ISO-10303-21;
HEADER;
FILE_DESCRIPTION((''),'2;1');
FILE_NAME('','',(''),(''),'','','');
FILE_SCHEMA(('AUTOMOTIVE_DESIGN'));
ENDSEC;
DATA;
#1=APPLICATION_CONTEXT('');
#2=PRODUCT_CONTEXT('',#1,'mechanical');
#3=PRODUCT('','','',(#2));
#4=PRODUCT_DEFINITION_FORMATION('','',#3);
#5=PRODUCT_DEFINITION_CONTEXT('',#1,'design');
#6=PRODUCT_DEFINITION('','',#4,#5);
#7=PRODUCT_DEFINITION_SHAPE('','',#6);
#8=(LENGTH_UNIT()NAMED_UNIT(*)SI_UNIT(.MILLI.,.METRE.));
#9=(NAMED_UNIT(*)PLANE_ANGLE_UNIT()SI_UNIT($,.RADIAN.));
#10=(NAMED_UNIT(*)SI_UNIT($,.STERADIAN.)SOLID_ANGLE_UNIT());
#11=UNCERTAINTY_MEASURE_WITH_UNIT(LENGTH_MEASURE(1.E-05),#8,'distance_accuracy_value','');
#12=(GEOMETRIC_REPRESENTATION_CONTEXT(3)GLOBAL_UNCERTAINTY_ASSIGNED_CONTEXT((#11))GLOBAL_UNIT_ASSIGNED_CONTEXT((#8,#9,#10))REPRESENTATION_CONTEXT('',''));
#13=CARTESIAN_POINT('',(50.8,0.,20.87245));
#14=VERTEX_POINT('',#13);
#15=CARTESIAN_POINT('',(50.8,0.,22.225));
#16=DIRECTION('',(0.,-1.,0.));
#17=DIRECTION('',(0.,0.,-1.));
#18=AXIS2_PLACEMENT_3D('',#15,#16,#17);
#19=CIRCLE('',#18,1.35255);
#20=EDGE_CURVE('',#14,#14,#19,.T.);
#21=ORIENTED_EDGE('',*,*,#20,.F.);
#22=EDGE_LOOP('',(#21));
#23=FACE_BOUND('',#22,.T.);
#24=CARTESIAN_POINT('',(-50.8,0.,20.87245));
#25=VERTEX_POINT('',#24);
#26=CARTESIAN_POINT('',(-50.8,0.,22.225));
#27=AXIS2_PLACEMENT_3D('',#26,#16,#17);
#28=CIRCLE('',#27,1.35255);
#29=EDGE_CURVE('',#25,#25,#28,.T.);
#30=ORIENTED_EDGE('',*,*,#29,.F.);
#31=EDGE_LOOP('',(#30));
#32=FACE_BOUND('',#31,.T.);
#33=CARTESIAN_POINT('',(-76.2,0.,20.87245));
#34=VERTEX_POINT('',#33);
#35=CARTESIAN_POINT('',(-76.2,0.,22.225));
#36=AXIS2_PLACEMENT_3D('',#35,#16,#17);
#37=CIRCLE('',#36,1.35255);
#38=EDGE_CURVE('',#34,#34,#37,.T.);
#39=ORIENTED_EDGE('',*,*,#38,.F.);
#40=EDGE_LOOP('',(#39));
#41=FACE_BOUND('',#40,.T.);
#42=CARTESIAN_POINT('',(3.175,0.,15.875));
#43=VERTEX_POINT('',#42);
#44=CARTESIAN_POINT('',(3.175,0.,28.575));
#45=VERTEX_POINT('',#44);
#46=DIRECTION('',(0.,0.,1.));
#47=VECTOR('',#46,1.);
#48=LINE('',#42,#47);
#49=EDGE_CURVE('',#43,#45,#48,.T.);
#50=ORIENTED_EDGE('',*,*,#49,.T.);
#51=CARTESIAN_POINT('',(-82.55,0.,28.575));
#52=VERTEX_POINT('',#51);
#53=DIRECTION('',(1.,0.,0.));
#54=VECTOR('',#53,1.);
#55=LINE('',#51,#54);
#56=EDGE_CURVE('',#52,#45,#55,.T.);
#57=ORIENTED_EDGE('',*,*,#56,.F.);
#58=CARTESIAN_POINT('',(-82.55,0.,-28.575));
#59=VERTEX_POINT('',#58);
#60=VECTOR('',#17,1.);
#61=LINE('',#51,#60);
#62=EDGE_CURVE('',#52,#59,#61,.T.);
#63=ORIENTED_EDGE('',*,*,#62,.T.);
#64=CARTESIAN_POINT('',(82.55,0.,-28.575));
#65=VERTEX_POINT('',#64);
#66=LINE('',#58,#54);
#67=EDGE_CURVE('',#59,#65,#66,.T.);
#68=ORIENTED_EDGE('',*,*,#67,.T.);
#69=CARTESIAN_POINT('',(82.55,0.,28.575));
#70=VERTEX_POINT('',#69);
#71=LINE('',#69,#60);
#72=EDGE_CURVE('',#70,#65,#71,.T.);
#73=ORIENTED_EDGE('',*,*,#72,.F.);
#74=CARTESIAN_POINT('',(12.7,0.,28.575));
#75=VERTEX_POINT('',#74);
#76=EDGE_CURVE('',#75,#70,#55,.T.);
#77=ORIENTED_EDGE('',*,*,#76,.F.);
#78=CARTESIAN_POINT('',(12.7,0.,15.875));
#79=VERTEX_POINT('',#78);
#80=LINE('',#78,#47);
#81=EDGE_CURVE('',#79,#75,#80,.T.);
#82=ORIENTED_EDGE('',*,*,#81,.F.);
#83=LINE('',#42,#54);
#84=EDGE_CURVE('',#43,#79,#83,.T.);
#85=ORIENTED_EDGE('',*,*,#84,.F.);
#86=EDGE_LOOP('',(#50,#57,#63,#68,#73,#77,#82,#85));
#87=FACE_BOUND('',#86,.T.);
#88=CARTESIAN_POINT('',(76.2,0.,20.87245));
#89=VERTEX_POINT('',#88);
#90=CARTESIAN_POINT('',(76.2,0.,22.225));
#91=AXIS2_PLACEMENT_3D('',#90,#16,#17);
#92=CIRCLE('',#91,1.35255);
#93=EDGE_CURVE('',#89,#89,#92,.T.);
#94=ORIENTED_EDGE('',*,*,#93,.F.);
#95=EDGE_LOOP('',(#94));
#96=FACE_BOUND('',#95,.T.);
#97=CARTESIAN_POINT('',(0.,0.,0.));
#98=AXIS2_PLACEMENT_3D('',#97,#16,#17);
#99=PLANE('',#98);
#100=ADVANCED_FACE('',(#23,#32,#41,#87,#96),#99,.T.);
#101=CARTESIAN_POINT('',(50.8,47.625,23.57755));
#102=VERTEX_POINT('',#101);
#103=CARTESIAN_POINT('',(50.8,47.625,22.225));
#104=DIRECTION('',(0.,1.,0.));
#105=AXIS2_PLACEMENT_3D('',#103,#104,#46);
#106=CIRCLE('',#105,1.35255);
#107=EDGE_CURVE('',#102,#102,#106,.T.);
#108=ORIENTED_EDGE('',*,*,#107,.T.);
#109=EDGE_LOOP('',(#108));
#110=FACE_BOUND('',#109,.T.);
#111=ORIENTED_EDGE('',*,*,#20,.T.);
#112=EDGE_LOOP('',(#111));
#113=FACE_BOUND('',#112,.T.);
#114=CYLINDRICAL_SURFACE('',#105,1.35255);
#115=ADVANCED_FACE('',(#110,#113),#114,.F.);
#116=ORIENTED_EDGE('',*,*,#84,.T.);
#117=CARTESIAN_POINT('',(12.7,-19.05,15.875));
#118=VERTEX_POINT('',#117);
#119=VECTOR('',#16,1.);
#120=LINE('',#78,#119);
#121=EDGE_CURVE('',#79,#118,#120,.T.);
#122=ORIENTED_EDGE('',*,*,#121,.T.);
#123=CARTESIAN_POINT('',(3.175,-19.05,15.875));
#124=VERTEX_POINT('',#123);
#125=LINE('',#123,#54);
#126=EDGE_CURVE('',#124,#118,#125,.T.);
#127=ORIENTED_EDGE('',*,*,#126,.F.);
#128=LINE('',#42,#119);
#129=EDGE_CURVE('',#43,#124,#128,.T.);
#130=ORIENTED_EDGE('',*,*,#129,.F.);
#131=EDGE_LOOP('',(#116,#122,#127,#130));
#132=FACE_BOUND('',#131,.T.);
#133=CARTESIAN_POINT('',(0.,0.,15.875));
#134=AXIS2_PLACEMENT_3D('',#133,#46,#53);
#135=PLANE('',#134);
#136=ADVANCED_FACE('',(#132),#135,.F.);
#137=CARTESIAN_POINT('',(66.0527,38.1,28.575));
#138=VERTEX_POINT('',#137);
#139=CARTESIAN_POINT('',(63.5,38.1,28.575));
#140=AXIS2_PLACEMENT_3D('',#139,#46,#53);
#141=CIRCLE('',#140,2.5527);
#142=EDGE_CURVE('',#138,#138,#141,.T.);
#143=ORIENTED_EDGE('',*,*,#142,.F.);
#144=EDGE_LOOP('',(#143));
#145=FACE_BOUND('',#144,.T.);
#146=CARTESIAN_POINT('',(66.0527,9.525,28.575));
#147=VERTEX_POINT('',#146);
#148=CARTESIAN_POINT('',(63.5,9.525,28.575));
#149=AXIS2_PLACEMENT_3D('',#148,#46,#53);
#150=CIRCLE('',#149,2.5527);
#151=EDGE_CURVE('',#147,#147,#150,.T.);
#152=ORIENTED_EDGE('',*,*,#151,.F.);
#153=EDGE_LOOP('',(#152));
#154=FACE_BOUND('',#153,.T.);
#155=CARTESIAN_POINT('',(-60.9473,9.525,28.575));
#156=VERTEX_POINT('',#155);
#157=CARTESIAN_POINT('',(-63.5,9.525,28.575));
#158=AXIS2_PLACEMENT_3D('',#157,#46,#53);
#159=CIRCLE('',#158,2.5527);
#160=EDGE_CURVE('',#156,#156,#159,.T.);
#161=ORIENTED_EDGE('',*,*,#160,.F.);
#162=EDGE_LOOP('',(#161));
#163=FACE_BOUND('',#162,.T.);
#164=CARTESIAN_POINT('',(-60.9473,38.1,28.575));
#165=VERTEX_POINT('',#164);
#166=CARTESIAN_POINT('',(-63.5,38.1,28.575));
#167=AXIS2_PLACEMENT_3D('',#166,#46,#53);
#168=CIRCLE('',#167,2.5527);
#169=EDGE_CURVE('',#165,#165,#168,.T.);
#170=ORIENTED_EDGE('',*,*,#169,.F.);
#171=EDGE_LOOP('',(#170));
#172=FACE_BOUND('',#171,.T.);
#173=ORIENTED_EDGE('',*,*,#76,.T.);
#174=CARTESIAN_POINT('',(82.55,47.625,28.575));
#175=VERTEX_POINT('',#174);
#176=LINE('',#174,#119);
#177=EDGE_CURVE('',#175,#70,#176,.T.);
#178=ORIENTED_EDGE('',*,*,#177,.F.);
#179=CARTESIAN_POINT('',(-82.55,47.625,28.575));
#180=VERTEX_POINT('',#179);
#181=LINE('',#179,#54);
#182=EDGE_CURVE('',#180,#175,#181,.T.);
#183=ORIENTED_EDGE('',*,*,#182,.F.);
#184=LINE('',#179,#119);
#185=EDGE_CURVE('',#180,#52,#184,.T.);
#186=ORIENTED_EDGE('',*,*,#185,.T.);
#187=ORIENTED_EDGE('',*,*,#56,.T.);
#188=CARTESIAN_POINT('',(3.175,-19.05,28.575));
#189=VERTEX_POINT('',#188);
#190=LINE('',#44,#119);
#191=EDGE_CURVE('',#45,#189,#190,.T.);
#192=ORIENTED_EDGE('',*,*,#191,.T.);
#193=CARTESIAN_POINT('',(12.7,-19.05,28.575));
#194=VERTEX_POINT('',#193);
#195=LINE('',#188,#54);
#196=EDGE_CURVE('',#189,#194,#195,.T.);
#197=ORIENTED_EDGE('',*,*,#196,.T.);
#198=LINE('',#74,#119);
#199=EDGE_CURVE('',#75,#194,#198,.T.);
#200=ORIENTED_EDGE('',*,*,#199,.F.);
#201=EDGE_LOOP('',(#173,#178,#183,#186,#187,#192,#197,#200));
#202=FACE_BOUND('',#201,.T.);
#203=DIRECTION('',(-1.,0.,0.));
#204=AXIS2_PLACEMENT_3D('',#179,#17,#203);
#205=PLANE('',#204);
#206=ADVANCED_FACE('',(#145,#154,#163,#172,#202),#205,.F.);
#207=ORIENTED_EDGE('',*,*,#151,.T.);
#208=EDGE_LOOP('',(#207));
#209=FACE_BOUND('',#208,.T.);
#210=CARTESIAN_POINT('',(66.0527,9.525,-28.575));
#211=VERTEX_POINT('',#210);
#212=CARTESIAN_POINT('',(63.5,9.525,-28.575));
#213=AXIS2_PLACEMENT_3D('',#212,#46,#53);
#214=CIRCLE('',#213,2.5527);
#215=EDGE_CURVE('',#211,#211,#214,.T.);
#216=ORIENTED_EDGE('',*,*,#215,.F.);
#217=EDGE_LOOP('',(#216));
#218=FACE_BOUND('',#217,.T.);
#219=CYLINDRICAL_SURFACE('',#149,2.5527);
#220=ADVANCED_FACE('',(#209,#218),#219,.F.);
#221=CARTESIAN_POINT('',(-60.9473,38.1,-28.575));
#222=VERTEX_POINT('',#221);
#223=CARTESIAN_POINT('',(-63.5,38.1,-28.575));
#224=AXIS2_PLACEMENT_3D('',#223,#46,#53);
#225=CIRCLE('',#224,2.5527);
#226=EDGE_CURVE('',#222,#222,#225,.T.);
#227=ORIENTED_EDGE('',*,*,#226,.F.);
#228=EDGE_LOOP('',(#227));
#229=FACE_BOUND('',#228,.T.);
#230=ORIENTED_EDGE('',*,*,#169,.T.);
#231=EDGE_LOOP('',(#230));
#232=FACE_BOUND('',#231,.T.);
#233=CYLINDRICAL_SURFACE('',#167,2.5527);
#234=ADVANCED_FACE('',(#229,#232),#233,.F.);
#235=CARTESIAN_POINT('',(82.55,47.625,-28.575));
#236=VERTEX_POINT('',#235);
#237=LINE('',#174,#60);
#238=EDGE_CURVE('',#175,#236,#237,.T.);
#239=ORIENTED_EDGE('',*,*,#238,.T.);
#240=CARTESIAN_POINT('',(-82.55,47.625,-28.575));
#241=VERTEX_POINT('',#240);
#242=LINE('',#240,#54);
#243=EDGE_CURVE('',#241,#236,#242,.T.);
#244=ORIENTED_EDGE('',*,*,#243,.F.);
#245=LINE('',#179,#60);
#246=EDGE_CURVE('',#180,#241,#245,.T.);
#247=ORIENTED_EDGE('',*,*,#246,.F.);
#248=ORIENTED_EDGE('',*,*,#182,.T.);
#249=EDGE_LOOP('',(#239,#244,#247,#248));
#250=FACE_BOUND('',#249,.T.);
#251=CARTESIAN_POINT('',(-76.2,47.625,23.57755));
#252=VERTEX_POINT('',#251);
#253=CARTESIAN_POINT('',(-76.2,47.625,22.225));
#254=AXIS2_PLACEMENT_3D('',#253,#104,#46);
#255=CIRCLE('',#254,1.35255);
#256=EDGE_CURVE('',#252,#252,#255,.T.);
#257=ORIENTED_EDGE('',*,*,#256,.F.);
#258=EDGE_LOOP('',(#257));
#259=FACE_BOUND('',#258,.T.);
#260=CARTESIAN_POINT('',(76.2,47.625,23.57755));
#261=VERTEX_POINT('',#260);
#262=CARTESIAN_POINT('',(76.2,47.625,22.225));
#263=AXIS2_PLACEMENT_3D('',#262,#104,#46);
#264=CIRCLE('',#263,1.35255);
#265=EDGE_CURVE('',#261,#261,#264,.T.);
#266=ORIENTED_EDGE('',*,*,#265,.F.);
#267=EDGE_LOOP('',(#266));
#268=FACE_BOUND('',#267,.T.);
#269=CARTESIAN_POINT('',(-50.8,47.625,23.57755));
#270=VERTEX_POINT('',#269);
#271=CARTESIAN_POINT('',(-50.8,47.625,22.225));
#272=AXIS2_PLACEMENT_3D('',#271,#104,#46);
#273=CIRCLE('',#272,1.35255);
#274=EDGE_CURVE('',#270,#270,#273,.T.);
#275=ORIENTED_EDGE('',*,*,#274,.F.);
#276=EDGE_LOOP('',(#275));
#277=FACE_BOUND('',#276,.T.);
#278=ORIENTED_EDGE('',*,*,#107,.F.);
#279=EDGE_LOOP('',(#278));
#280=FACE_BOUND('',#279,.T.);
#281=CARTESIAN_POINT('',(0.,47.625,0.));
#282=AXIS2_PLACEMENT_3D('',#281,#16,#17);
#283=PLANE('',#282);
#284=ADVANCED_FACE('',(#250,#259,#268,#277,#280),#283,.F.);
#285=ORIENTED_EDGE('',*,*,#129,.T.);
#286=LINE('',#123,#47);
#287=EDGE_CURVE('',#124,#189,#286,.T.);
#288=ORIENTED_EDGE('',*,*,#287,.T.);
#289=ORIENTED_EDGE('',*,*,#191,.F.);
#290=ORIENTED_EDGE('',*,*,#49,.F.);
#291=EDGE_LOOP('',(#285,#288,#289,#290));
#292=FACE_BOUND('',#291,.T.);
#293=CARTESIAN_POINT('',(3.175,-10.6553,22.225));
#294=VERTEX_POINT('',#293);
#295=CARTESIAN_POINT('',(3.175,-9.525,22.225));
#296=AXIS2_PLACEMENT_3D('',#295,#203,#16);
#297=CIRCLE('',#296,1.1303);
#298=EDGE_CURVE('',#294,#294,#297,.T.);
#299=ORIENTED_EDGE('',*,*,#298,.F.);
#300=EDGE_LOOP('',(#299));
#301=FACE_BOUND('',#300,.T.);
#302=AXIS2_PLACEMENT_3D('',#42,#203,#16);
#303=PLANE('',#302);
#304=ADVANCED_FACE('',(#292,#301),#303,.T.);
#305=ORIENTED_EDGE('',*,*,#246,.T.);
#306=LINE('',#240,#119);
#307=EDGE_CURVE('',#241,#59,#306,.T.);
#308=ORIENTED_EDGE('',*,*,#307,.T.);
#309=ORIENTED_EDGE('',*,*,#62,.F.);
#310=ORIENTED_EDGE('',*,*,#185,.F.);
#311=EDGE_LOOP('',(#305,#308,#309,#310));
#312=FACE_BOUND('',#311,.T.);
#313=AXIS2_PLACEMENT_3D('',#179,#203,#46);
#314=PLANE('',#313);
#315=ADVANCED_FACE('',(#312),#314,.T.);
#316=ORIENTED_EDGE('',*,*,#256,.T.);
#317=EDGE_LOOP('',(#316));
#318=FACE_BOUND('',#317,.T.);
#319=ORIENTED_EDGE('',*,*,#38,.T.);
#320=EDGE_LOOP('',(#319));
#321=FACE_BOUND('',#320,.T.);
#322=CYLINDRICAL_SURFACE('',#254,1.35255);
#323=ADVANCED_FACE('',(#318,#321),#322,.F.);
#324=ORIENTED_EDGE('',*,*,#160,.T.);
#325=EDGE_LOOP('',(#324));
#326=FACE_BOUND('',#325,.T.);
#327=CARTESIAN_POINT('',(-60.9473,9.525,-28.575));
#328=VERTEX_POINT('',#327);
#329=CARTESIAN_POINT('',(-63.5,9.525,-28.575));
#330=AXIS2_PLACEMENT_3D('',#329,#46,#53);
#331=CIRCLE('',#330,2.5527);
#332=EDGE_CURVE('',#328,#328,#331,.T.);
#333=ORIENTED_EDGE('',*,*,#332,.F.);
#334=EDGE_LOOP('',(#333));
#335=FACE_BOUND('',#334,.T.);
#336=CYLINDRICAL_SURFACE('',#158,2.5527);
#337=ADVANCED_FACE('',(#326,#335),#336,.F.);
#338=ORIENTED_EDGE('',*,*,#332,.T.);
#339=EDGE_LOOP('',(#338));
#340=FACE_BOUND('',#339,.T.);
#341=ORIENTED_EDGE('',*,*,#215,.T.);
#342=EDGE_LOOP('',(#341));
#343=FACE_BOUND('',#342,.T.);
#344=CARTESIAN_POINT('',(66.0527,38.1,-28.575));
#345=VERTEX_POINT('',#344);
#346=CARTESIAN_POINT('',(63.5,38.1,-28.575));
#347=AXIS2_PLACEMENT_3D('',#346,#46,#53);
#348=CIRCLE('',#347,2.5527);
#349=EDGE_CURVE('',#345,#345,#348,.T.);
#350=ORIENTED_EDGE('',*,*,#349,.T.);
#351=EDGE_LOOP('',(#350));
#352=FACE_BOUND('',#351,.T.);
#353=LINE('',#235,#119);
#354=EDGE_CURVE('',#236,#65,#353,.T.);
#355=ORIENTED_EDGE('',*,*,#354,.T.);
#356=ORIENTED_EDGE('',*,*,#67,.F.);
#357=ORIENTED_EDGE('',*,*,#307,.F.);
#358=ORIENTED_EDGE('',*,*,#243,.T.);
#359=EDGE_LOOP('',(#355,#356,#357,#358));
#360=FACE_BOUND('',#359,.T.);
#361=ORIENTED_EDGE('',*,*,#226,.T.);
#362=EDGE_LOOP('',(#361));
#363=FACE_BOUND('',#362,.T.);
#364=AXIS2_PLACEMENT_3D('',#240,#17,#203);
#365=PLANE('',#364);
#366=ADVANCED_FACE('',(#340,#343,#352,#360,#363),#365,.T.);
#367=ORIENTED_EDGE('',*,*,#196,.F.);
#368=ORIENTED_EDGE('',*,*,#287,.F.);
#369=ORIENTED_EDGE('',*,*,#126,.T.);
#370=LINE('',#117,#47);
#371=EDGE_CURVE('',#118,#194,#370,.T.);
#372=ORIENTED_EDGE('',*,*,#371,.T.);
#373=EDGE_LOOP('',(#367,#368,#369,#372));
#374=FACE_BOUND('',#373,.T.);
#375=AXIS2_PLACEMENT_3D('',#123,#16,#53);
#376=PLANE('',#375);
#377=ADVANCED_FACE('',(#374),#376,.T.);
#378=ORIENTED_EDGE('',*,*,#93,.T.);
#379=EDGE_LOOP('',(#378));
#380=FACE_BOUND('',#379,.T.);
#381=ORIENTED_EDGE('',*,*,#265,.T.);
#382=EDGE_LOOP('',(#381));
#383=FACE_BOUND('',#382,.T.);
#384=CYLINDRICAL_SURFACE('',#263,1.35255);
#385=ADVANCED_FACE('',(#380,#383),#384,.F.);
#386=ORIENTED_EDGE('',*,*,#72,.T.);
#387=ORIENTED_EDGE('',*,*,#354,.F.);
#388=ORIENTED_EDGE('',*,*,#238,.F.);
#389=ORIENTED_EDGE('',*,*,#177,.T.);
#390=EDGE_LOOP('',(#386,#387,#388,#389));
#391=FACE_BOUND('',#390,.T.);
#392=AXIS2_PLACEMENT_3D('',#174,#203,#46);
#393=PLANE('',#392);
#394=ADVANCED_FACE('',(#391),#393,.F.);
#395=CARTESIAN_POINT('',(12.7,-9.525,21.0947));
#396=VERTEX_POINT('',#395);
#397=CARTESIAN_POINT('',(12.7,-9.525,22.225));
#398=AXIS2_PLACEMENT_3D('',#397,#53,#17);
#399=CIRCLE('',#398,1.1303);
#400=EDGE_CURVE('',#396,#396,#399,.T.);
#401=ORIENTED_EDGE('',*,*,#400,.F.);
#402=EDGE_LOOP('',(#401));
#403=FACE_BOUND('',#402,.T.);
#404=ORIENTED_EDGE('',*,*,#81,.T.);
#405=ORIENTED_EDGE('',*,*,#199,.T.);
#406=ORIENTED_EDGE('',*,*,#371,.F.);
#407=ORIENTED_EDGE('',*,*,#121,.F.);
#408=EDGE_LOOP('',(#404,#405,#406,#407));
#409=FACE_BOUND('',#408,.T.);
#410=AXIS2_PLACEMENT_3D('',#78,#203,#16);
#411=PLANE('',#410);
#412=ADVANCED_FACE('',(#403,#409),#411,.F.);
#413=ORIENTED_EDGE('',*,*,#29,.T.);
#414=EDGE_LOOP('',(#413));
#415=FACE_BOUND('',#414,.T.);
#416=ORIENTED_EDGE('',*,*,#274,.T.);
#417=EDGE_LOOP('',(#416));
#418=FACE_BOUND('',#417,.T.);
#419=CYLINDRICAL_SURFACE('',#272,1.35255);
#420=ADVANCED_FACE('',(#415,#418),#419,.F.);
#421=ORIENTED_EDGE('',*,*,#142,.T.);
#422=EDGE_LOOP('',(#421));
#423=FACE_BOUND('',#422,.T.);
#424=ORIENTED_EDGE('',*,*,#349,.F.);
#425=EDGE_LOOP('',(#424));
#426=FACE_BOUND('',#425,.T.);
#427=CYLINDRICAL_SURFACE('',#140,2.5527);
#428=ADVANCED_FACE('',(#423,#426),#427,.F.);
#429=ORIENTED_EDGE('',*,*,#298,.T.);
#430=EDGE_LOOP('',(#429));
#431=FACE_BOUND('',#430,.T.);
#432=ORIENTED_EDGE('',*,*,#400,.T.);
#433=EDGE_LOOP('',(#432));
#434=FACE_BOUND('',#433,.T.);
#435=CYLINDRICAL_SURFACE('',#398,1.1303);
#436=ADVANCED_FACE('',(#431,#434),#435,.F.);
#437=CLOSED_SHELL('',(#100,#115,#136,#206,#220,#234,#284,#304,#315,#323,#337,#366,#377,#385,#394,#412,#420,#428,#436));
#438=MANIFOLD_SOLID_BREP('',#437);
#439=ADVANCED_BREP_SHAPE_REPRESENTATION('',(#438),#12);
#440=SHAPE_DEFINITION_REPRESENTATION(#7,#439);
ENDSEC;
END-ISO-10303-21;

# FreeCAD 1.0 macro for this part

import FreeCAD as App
import Part
import Sketcher

V = App.Vector
Q = App.Units.Quantity


def add_polygon(sketch, points):
    """Adds a closed chain of lines whose ends are joined by coincident constraints."""
    first, n = sketch.GeometryCount, len(points)
    for a, b in zip(points, points[1:] + points[:1]):
        sketch.addGeometry(Part.LineSegment(App.Vector(*a, 0), App.Vector(*b, 0)), False)
    for i in range(n):
        sketch.addConstraint(Sketcher.Constraint("Coincident", first + i, 2, first + (i + 1) % n, 1))

doc = App.newDocument("Part")
body = doc.addObject("PartDesign::Body", "Body")

# Sketch on XZ plane
sketch1 = doc.addObject("Sketcher::SketchObject", "Sketch")
body.addObject(sketch1)
sketch1.AttachmentSupport = (doc.XZ_Plane, [""])
sketch1.MapMode = "FlatFace"
add_polygon(sketch1, [(-83, -29), (-83, 29), (83, 29), (83, -29)])  # lines 0-3
sketch1.addConstraint([
    Sketcher.Constraint("Vertical", 0),
    Sketcher.Constraint("Horizontal", 1),
    Sketcher.Constraint("Vertical", 2),
    Sketcher.Constraint("Horizontal", 3),
    Sketcher.Constraint("Symmetric", 0, 2, 2, 2, -1, 1),
    Sketcher.Constraint("DistanceX", 1, 1, 1, 2, Q("6.5 in")),
    Sketcher.Constraint("DistanceY", 0, 1, 0, 2, Q("2.25 in")),
])
pad1 = doc.addObject("PartDesign::Pad", "Pad")
body.addObject(pad1)
pad1.Profile = sketch1
pad1.Length = Q("1.875 in")
pad1.Reversed = True

# Sketch on XY plane
sketch2 = doc.addObject("Sketcher::SketchObject", "Sketch001")
body.addObject(sketch2)
sketch2.AttachmentSupport = (doc.XY_Plane, [""])
sketch2.MapMode = "FlatFace"
sketch2.AttachmentOffset = App.Placement(V(0, 0, 1.125 * 25.4), App.Rotation())
add_polygon(sketch2, [(3, 0), (3, -19), (13, -19), (13, 0)])  # lines 0-3
sketch2.addConstraint([
    Sketcher.Constraint("Vertical", 0),
    Sketcher.Constraint("Horizontal", 1),
    Sketcher.Constraint("Vertical", 2),
    Sketcher.Constraint("Horizontal", 3),
    Sketcher.Constraint("PointOnObject", 2, 2, -1),
    Sketcher.Constraint("DistanceY", 0, 2, 0, 1, Q("0.75 in")),
    Sketcher.Constraint("DistanceX", -1, 1, 1, 2, Q("0.5 in")),
    Sketcher.Constraint("DistanceX", 1, 1, 1, 2, Q("0.375 in")),
])
pad2 = doc.addObject("PartDesign::Pad", "Pad001")
body.addObject(pad2)
pad2.Profile = sketch2
pad2.Length = Q("0.5 in")
pad2.Reversed = True

# Sketch on YZ plane
sketch3 = doc.addObject("Sketcher::SketchObject", "Sketch002")
body.addObject(sketch3)
sketch3.AttachmentSupport = (doc.YZ_Plane, [""])
sketch3.MapMode = "FlatFace"
sketch3.AttachmentOffset = App.Placement(V(0, 0, 0.5 * 25.4), App.Rotation())
sketch3.addGeometry(Part.Circle(V(-9.5, 22.2, 0), V(0, 0, 1), 1.1), False)
sketch3.addConstraint([
    Sketcher.Constraint("Diameter", 0, Q("0.089 in")),
    Sketcher.Constraint("DistanceX", 0, 3, -1, 1, Q("0.375 in")),
    Sketcher.Constraint("DistanceY", -1, 1, 0, 3, Q("0.875 in")),
])
doc.recompute()
hole = doc.addObject("PartDesign::Hole", "Hole")
body.addObject(hole)
hole.Profile = sketch3
hole.ThreadType = "None"
hole.Diameter = Q("0.089 in")
hole.DepthType = "ThroughAll"

# Sketch on XY plane
sketch4 = doc.addObject("Sketcher::SketchObject", "Sketch003")
body.addObject(sketch4)
sketch4.AttachmentSupport = (doc.XY_Plane, [""])
sketch4.MapMode = "FlatFace"
sketch4.AttachmentOffset = App.Placement(V(0, 0, 1.125 * 25.4), App.Rotation())
sketch4.addGeometry([
    Part.Circle(V(-63.5, 38.1, 0), V(0, 0, 1), 2.6),
    Part.Circle(V(-63.5, 9.5, 0), V(0, 0, 1), 2.6),
    Part.Circle(V(63.5, 38.1, 0), V(0, 0, 1), 2.6),
    Part.Circle(V(63.5, 9.5, 0), V(0, 0, 1), 2.6),
], False)
sketch4.addConstraint([
    Sketcher.Constraint("Equal", 0, 1),
    Sketcher.Constraint("Equal", 1, 2),
    Sketcher.Constraint("Equal", 2, 3),
    Sketcher.Constraint("Symmetric", 0, 3, 2, 3, -2),
    Sketcher.Constraint("Symmetric", 1, 3, 3, 3, -2),
    Sketcher.Constraint("Vertical", 0, 3, 1, 3),
    Sketcher.Constraint("Diameter", 0, Q("0.201 in")),
    Sketcher.Constraint("DistanceX", 0, 3, 2, 3, Q("5 in")),
    Sketcher.Constraint("DistanceY", -1, 1, 0, 3, Q("1.5 in")),
    Sketcher.Constraint("DistanceY", -1, 1, 1, 3, Q("0.375 in")),
])
doc.recompute()
hole2 = doc.addObject("PartDesign::Hole", "Hole001")
body.addObject(hole2)
hole2.Profile = sketch4
hole2.ThreadType = "None"
hole2.Diameter = Q("0.201 in")
hole2.DepthType = "ThroughAll"

# Sketch on XZ plane
sketch5 = doc.addObject("Sketcher::SketchObject", "Sketch004")
body.addObject(sketch5)
sketch5.AttachmentSupport = (doc.XZ_Plane, [""])
sketch5.MapMode = "FlatFace"
sketch5.AttachmentOffset = App.Placement(V(0, 0, -1.875 * 25.4), App.Rotation())
sketch5.addGeometry([
    Part.Circle(V(-76.2, 22.2, 0), V(0, 0, 1), 1.4),
    Part.Circle(V(-50.8, 22.2, 0), V(0, 0, 1), 1.4),
    Part.Circle(V(50.8, 22.2, 0), V(0, 0, 1), 1.4),
    Part.Circle(V(76.2, 22.2, 0), V(0, 0, 1), 1.4),
], False)
sketch5.addConstraint([
    Sketcher.Constraint("Equal", 0, 1),
    Sketcher.Constraint("Equal", 1, 2),
    Sketcher.Constraint("Equal", 2, 3),
    Sketcher.Constraint("Symmetric", 1, 3, 2, 3, -2),
    Sketcher.Constraint("Symmetric", 0, 3, 3, 3, -2),
    Sketcher.Constraint("Horizontal", 0, 3, 1, 3),
    Sketcher.Constraint("DistanceX", 0, 3, -1, 1, Q("3 in")),
    Sketcher.Constraint("DistanceX", 1, 3, -1, 1, Q("2 in")),
    Sketcher.Constraint("Diameter", 0, Q("0.1065 in")),
    Sketcher.Constraint("DistanceY", -1, 1, 0, 3, Q("0.875 in")),
])
doc.recompute()
hole3 = doc.addObject("PartDesign::Hole", "Hole002")
body.addObject(hole3)
hole3.Profile = sketch5
hole3.ThreadType = "None"
hole3.Diameter = Q("0.1065 in")
hole3.DepthType = "ThroughAll"
hole3.Reversed = True

doc.recompute()
